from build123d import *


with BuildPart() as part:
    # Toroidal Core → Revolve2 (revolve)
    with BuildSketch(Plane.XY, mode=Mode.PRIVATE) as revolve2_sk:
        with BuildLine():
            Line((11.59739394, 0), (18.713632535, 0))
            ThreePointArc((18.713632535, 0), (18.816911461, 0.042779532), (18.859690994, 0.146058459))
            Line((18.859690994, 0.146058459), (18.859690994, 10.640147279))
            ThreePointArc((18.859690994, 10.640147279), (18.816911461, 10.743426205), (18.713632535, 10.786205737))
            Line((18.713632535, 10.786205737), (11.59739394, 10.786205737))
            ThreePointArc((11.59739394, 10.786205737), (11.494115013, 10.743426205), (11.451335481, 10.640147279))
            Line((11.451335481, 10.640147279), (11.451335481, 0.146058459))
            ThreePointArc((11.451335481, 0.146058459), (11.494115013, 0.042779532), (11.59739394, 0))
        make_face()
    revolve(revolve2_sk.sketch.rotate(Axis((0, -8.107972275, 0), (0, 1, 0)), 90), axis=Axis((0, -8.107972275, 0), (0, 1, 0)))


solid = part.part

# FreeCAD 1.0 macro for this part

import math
import FreeCAD as App
import Part
import Sketcher

V = App.Vector

doc = App.newDocument("Part")
body = doc.addObject("PartDesign::Body", "Body")

sketch1 = doc.addObject("Sketcher::SketchObject", "Sketch")
body.addObject(sketch1)
sketch1.AttachmentSupport = (doc.XY_Plane, [""])
sketch1.MapMode = "FlatFace"
sketch1.addGeometry([
    Part.LineSegment(V(11.6, 0, 0), V(18.71, 0, 0)),
    Part.ArcOfCircle(Part.Circle(V(18.71, 0.15, 0), V(0, 0, 1), 0.15), math.radians(-90), math.radians(0)),
    Part.LineSegment(V(18.86, 0.15, 0), V(18.86, 10.64, 0)),
    Part.ArcOfCircle(Part.Circle(V(18.71, 10.64, 0), V(0, 0, 1), 0.15), math.radians(0), math.radians(90)),
    Part.LineSegment(V(18.71, 10.79, 0), V(11.6, 10.79, 0)),
    Part.ArcOfCircle(Part.Circle(V(11.6, 10.64, 0), V(0, 0, 1), 0.15), math.radians(90), math.radians(180)),
    Part.LineSegment(V(11.45, 10.64, 0), V(11.45, 0.15, 0)),
    Part.ArcOfCircle(Part.Circle(V(11.6, 0.15, 0), V(0, 0, 1), 0.15), math.radians(180), math.radians(270)),
], False)
sketch1.addConstraint([
    Sketcher.Constraint("Tangent", 0, 2, 1, 1),
    Sketcher.Constraint("Tangent", 1, 2, 2, 1),
    Sketcher.Constraint("Tangent", 2, 2, 3, 1),
    Sketcher.Constraint("Tangent", 3, 2, 4, 1),
    Sketcher.Constraint("Tangent", 4, 2, 5, 1),
    Sketcher.Constraint("Tangent", 5, 2, 6, 1),
    Sketcher.Constraint("Tangent", 6, 2, 7, 1),
    Sketcher.Constraint("Tangent", 7, 2, 0, 1),
    Sketcher.Constraint("Horizontal", 0),
    Sketcher.Constraint("Vertical", 2),
    Sketcher.Constraint("Horizontal", 4),
    Sketcher.Constraint("Vertical", 6),
    Sketcher.Constraint("Equal", 1, 3),
    Sketcher.Constraint("Equal", 3, 5),
    Sketcher.Constraint("Equal", 5, 7),
    Sketcher.Constraint("PointOnObject", 0, 2, -1),
    Sketcher.Constraint("Radius", 1, 0.146058),
    Sketcher.Constraint("DistanceX", 0, 1, 0, 2, 7.116239),
    Sketcher.Constraint("DistanceY", 2, 1, 2, 2, 10.494089),
    Sketcher.Constraint("DistanceX", -1, 1, 1, 2, 18.859691),
])
revolution = doc.addObject("PartDesign::Revolution", "Revolution")
body.addObject(revolution)
revolution.Profile = sketch1
revolution.ReferenceAxis = (sketch1, ["V_Axis"])
revolution.Angle = 360

doc.recompute()
